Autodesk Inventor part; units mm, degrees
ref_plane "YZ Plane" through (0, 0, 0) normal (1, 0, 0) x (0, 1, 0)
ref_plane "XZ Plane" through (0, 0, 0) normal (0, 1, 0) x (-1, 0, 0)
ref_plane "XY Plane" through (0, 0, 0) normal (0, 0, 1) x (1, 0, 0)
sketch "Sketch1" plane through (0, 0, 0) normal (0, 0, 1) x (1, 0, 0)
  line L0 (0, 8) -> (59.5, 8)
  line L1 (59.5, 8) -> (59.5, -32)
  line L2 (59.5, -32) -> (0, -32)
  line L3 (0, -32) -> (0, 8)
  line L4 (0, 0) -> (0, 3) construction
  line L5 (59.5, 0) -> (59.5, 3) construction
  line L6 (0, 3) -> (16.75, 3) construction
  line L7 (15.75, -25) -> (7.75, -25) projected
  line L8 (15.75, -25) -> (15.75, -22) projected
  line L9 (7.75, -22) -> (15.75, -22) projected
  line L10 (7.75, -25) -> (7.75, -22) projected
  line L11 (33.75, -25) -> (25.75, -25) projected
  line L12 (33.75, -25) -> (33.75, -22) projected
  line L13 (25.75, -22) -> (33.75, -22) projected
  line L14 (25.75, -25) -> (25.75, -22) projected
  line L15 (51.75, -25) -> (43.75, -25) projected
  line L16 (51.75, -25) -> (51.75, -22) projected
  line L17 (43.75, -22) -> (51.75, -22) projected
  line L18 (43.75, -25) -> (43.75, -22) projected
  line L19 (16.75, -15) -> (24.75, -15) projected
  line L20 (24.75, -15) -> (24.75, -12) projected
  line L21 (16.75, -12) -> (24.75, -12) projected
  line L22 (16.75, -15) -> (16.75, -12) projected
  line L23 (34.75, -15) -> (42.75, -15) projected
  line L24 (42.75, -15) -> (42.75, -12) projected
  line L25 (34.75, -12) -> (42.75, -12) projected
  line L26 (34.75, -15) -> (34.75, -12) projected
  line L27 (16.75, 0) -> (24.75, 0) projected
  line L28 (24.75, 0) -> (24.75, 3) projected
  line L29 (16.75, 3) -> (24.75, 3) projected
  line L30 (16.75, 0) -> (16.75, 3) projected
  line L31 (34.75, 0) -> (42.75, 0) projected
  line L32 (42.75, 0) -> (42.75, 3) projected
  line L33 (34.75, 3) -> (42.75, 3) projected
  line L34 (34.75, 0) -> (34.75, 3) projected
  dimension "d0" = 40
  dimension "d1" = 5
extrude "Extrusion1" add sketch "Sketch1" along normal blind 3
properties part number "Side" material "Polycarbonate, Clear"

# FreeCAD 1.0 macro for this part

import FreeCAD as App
import Part
import Sketcher

V = App.Vector

doc = App.newDocument("Part")
body = doc.addObject("PartDesign::Body", "Body")

sketch1 = doc.addObject("Sketcher::SketchObject", "Sketch")
body.addObject(sketch1)
sketch1.AttachmentSupport = (doc.XY_Plane, [""])
sketch1.MapMode = "FlatFace"
sketch1.addGeometry(Part.LineSegment(V(59.5, 8, 0), V(0, 8, 0)), False)
sketch1.addGeometry(Part.LineSegment(V(0, 8, 0), V(0, -32, 0)), False)
sketch1.addGeometry(Part.LineSegment(V(0, -32, 0), V(59.5, -32, 0)), False)
sketch1.addGeometry(Part.LineSegment(V(59.5, -32, 0), V(59.5, 8, 0)), False)
sketch1.addGeometry(Part.LineSegment(V(15.8, -22, 0), V(15.8, -25, 0)), False)
sketch1.addGeometry(Part.LineSegment(V(15.8, -25, 0), V(7.8, -25, 0)), False)
sketch1.addGeometry(Part.LineSegment(V(7.8, -25, 0), V(7.8, -22, 0)), False)
sketch1.addGeometry(Part.LineSegment(V(7.8, -22, 0), V(15.8, -22, 0)), False)
sketch1.addGeometry(Part.LineSegment(V(24.8, -15, 0), V(16.8, -15, 0)), False)
sketch1.addGeometry(Part.LineSegment(V(16.8, -15, 0), V(16.8, -12, 0)), False)
sketch1.addGeometry(Part.LineSegment(V(16.8, -12, 0), V(24.8, -12, 0)), False)
sketch1.addGeometry(Part.LineSegment(V(24.8, -12, 0), V(24.8, -15, 0)), False)
sketch1.addGeometry(Part.LineSegment(V(33.8, -22, 0), V(33.8, -25, 0)), False)
sketch1.addGeometry(Part.LineSegment(V(33.8, -25, 0), V(25.8, -25, 0)), False)
sketch1.addGeometry(Part.LineSegment(V(25.8, -25, 0), V(25.8, -22, 0)), False)
sketch1.addGeometry(Part.LineSegment(V(25.8, -22, 0), V(33.8, -22, 0)), False)
sketch1.addGeometry(Part.LineSegment(V(51.8, -22, 0), V(51.8, -25, 0)), False)
sketch1.addGeometry(Part.LineSegment(V(51.8, -25, 0), V(43.8, -25, 0)), False)
sketch1.addGeometry(Part.LineSegment(V(43.8, -25, 0), V(43.8, -22, 0)), False)
sketch1.addGeometry(Part.LineSegment(V(43.8, -22, 0), V(51.8, -22, 0)), False)
sketch1.addGeometry(Part.LineSegment(V(42.8, -15, 0), V(34.8, -15, 0)), False)
sketch1.addGeometry(Part.LineSegment(V(34.8, -15, 0), V(34.8, -12, 0)), False)
sketch1.addGeometry(Part.LineSegment(V(34.8, -12, 0), V(42.8, -12, 0)), False)
sketch1.addGeometry(Part.LineSegment(V(42.8, -12, 0), V(42.8, -15, 0)), False)
sketch1.addGeometry(Part.LineSegment(V(24.8, 0, 0), V(16.8, 0, 0)), False)
sketch1.addGeometry(Part.LineSegment(V(16.8, 0, 0), V(16.8, 3, 0)), False)
sketch1.addGeometry(Part.LineSegment(V(16.8, 3, 0), V(24.8, 3, 0)), False)
sketch1.addGeometry(Part.LineSegment(V(24.8, 3, 0), V(24.8, 0, 0)), False)
sketch1.addGeometry(Part.LineSegment(V(42.8, 0, 0), V(34.8, 0, 0)), False)
sketch1.addGeometry(Part.LineSegment(V(34.8, 0, 0), V(34.8, 3, 0)), False)
sketch1.addGeometry(Part.LineSegment(V(34.8, 3, 0), V(42.8, 3, 0)), False)
sketch1.addGeometry(Part.LineSegment(V(42.8, 3, 0), V(42.8, 0, 0)), False)
sketch1.addConstraint(Sketcher.Constraint("Coincident", 0, 2, 1, 1))
sketch1.addConstraint(Sketcher.Constraint("Coincident", 1, 2, 2, 1))
sketch1.addConstraint(Sketcher.Constraint("Coincident", 2, 2, 3, 1))
sketch1.addConstraint(Sketcher.Constraint("Coincident", 3, 2, 0, 1))
sketch1.addConstraint(Sketcher.Constraint("Coincident", 4, 2, 5, 1))
sketch1.addConstraint(Sketcher.Constraint("Coincident", 5, 2, 6, 1))
sketch1.addConstraint(Sketcher.Constraint("Coincident", 6, 2, 7, 1))
sketch1.addConstraint(Sketcher.Constraint("Coincident", 7, 2, 4, 1))
sketch1.addConstraint(Sketcher.Constraint("Coincident", 8, 2, 9, 1))
sketch1.addConstraint(Sketcher.Constraint("Coincident", 9, 2, 10, 1))
sketch1.addConstraint(Sketcher.Constraint("Coincident", 10, 2, 11, 1))
sketch1.addConstraint(Sketcher.Constraint("Coincident", 11, 2, 8, 1))
sketch1.addConstraint(Sketcher.Constraint("Coincident", 12, 2, 13, 1))
sketch1.addConstraint(Sketcher.Constraint("Coincident", 13, 2, 14, 1))
sketch1.addConstraint(Sketcher.Constraint("Coincident", 14, 2, 15, 1))
sketch1.addConstraint(Sketcher.Constraint("Coincident", 15, 2, 12, 1))
sketch1.addConstraint(Sketcher.Constraint("Coincident", 16, 2, 17, 1))
sketch1.addConstraint(Sketcher.Constraint("Coincident", 17, 2, 18, 1))
sketch1.addConstraint(Sketcher.Constraint("Coincident", 18, 2, 19, 1))
sketch1.addConstraint(Sketcher.Constraint("Coincident", 19, 2, 16, 1))
sketch1.addConstraint(Sketcher.Constraint("Coincident", 20, 2, 21, 1))
sketch1.addConstraint(Sketcher.Constraint("Coincident", 21, 2, 22, 1))
sketch1.addConstraint(Sketcher.Constraint("Coincident", 22, 2, 23, 1))
sketch1.addConstraint(Sketcher.Constraint("Coincident", 23, 2, 20, 1))
sketch1.addConstraint(Sketcher.Constraint("Coincident", 24, 2, 25, 1))
sketch1.addConstraint(Sketcher.Constraint("Coincident", 25, 2, 26, 1))
sketch1.addConstraint(Sketcher.Constraint("Coincident", 26, 2, 27, 1))
sketch1.addConstraint(Sketcher.Constraint("Coincident", 27, 2, 24, 1))
sketch1.addConstraint(Sketcher.Constraint("Coincident", 28, 2, 29, 1))
sketch1.addConstraint(Sketcher.Constraint("Coincident", 29, 2, 30, 1))
sketch1.addConstraint(Sketcher.Constraint("Coincident", 30, 2, 31, 1))
sketch1.addConstraint(Sketcher.Constraint("Coincident", 31, 2, 28, 1))
sketch1.addConstraint(Sketcher.Constraint("Horizontal", 0))
sketch1.addConstraint(Sketcher.Constraint("Vertical", 1))
sketch1.addConstraint(Sketcher.Constraint("Horizontal", 2))
sketch1.addConstraint(Sketcher.Constraint("Vertical", 3))
sketch1.addConstraint(Sketcher.Constraint("Vertical", 4))
sketch1.addConstraint(Sketcher.Constraint("Horizontal", 5))
sketch1.addConstraint(Sketcher.Constraint("Vertical", 6))
sketch1.addConstraint(Sketcher.Constraint("Horizontal", 7))
sketch1.addConstraint(Sketcher.Constraint("Horizontal", 8))
sketch1.addConstraint(Sketcher.Constraint("Vertical", 9))
sketch1.addConstraint(Sketcher.Constraint("Horizontal", 10))
sketch1.addConstraint(Sketcher.Constraint("Vertical", 11))
sketch1.addConstraint(Sketcher.Constraint("Vertical", 12))
sketch1.addConstraint(Sketcher.Constraint("Horizontal", 13))
sketch1.addConstraint(Sketcher.Constraint("Vertical", 14))
sketch1.addConstraint(Sketcher.Constraint("Horizontal", 15))
sketch1.addConstraint(Sketcher.Constraint("Vertical", 16))
sketch1.addConstraint(Sketcher.Constraint("Horizontal", 17))
sketch1.addConstraint(Sketcher.Constraint("Vertical", 18))
sketch1.addConstraint(Sketcher.Constraint("Horizontal", 19))
sketch1.addConstraint(Sketcher.Constraint("Horizontal", 20))
sketch1.addConstraint(Sketcher.Constraint("Vertical", 21))
sketch1.addConstraint(Sketcher.Constraint("Horizontal", 22))
sketch1.addConstraint(Sketcher.Constraint("Vertical", 23))
sketch1.addConstraint(Sketcher.Constraint("Horizontal", 24))
sketch1.addConstraint(Sketcher.Constraint("Vertical", 25))
sketch1.addConstraint(Sketcher.Constraint("Horizontal", 26))
sketch1.addConstraint(Sketcher.Constraint("Vertical", 27))
sketch1.addConstraint(Sketcher.Constraint("Horizontal", 28))
sketch1.addConstraint(Sketcher.Constraint("Vertical", 29))
sketch1.addConstraint(Sketcher.Constraint("Horizontal", 30))
sketch1.addConstraint(Sketcher.Constraint("Vertical", 31))
sketch1.addConstraint(Sketcher.Constraint("PointOnObject", 0, 2, -2))
sketch1.addConstraint(Sketcher.Constraint("PointOnObject", 24, 2, -1))
sketch1.addConstraint(Sketcher.Constraint("PointOnObject", 28, 2, -1))
sketch1.addConstraint(Sketcher.Constraint("Horizontal", 5, 2, 12, 2))
sketch1.addConstraint(Sketcher.Constraint("Horizontal", 7, 2, 14, 2))
sketch1.addConstraint(Sketcher.Constraint("Horizontal", 13, 2, 16, 2))
sketch1.addConstraint(Sketcher.Constraint("Horizontal", 15, 2, 18, 2))
sketch1.addConstraint(Sketcher.Constraint("Horizontal", 11, 2, 20, 2))
sketch1.addConstraint(Sketcher.Constraint("Horizontal", 10, 2, 21, 2))
sketch1.addConstraint(Sketcher.Constraint("Horizontal", 26, 2, 29, 2))
sketch1.addConstraint(Sketcher.Constraint("Vertical", 9, 2, 24, 2))
sketch1.addConstraint(Sketcher.Constraint("Vertical", 11, 2, 26, 2))
sketch1.addConstraint(Sketcher.Constraint("Vertical", 21, 2, 28, 2))
sketch1.addConstraint(Sketcher.Constraint("Vertical", 23, 2, 30, 2))
sketch1.addConstraint(Sketcher.Constraint("Equal", 7, 8))
sketch1.addConstraint(Sketcher.Constraint("Equal", 10, 13))
sketch1.addConstraint(Sketcher.Constraint("Equal", 15, 17))
sketch1.addConstraint(Sketcher.Constraint("Equal", 19, 20))
sketch1.addConstraint(Sketcher.Constraint("Equal", 6, 9))
sketch1.addConstraint(Sketcher.Constraint("Equal", 23, 25))
sketch1.addConstraint(Sketcher.Constraint("DistanceY", 1, 2, 1, 1, 40.0))
sketch1.addConstraint(Sketcher.Constraint("DistanceY", 25, 2, 0, 2, 5.0))
sketch1.addConstraint(Sketcher.Constraint("DistanceX", 5, 2, 5, 1, 8.0))
sketch1.addConstraint(Sketcher.Constraint("DistanceY", 4, 2, 4, 1, 3.0))
sketch1.addConstraint(Sketcher.Constraint("DistanceX", 0, 2, 0, 1, 59.5))
sketch1.addConstraint(Sketcher.Constraint("DistanceY", 4, 2, -1, 1, 25.0))
sketch1.addConstraint(Sketcher.Constraint("DistanceY", 8, 2, -1, 1, 15.0))
sketch1.addConstraint(Sketcher.Constraint("DistanceX", 7, 2, 8, 2, 1.0))
sketch1.addConstraint(Sketcher.Constraint("DistanceX", 11, 2, 12, 2, 9.0))
sketch1.addConstraint(Sketcher.Constraint("DistanceX", 12, 2, 16, 2, 18.0))
sketch1.addConstraint(Sketcher.Constraint("DistanceX", 15, 2, 20, 2, 1.0))
sketch1.addConstraint(Sketcher.Constraint("DistanceX", -1, 1, 4, 2, 15.75))
pad1 = doc.addObject("PartDesign::Pad", "Pad")
body.addObject(pad1)
pad1.Profile = sketch1
pad1.Length = 3

doc.recompute()
